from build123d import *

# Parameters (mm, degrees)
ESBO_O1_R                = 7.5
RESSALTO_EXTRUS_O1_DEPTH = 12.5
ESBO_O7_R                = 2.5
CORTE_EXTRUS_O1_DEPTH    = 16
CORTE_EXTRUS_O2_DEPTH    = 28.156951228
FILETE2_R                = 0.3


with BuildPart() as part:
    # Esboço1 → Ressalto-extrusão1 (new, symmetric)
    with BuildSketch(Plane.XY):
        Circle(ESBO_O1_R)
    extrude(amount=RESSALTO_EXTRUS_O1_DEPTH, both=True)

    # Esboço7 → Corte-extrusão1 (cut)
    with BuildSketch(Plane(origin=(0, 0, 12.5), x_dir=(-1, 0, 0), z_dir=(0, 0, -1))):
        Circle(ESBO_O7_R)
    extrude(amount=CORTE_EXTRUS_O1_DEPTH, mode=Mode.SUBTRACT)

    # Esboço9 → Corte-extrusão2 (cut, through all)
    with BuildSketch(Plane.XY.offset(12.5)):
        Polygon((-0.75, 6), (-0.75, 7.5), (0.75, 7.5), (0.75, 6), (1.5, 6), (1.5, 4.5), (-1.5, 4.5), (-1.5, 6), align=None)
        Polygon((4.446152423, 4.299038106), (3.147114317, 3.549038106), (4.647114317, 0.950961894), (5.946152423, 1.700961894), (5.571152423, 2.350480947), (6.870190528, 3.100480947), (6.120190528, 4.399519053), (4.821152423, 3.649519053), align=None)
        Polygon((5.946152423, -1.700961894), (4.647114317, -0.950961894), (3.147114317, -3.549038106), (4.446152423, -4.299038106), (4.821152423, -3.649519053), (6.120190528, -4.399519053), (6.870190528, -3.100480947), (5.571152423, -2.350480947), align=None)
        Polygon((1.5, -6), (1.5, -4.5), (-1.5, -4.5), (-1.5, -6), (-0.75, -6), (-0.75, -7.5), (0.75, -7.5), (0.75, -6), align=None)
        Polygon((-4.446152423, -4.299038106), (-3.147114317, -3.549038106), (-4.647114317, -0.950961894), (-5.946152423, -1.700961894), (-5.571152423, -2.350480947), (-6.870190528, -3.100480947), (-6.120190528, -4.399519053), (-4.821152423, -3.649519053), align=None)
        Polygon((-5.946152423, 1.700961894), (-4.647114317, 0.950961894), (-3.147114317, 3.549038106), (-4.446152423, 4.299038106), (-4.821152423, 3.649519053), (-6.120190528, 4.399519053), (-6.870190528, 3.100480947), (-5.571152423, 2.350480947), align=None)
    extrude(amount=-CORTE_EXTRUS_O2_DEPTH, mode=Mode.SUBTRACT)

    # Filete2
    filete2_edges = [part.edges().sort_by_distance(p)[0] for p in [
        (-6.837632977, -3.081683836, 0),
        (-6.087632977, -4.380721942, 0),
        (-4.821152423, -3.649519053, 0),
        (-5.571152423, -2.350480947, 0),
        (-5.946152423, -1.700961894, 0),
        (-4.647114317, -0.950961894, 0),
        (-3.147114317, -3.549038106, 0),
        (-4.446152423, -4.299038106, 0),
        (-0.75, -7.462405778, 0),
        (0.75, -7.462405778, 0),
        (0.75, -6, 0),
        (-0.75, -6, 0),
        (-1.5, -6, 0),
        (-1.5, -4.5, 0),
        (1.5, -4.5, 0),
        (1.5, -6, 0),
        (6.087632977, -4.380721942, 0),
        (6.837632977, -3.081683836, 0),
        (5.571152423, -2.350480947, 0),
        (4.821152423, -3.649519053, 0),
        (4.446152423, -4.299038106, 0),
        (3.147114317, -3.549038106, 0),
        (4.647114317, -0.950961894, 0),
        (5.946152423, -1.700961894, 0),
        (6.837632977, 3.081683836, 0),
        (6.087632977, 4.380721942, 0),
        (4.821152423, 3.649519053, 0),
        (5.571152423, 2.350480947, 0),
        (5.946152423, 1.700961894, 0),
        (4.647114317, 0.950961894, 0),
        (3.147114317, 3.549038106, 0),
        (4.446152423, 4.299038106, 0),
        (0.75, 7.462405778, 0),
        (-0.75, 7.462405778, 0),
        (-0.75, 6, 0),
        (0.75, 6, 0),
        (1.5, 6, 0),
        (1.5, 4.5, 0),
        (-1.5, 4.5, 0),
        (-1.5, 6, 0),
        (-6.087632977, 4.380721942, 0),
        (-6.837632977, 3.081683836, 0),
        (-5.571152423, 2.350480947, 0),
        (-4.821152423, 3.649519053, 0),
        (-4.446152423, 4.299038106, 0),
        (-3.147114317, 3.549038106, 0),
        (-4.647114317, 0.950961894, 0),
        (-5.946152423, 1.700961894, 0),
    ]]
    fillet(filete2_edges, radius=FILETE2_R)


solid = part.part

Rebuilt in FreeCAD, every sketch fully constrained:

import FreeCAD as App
import Part
import Sketcher
from FreeCAD import Vector
Q = App.Units.Quantity


def edges_at(feature, points):
    """Names of the edges that pass closest to the given points."""
    edges = feature.Shape.Edges
    near = lambda p: min(range(len(edges)), key=lambda i: edges[i].distToShape(Part.Vertex(*p))[0])
    return sorted({f"Edge{near(p) + 1}" for p in points})

doc = App.newDocument("Part")
body = doc.addObject("PartDesign::Body", "Body")

# Sketch on XY plane
sketch1 = body.newObject("Sketcher::SketchObject", "Sketch")
sketch1.AttachmentSupport = (doc.getObject("XY_Plane"), [""])
sketch1.MapMode = "FlatFace"
sketch1.addGeometry(Part.Circle(Vector(0, 0, 0), Vector(0, 0, 1), 8), False)
sketch1.addConstraint(Sketcher.Constraint("Coincident", 0, 3, -1, 1))
sketch1.addConstraint(Sketcher.Constraint("Diameter", 0, 15.0))
pad1 = body.newObject("PartDesign::Pad", "Pad")
pad1.Profile = sketch1
pad1.Length = 25
pad1.Midplane = True

# Sketch on XY plane
sketch2 = body.newObject("Sketcher::SketchObject", "Sketch001")
sketch2.AttachmentSupport = (doc.getObject("XY_Plane"), [""])
sketch2.MapMode = "FlatFace"
sketch2.AttachmentOffset = App.Placement(Vector(0, 0, 12.5), App.Rotation())
sketch2.addGeometry(Part.Circle(Vector(0, 0, 0), Vector(0, 0, 1), 2.5), False)
sketch2.addConstraint(Sketcher.Constraint("Coincident", 0, 3, -1, 1))
sketch2.addConstraint(Sketcher.Constraint("Diameter", 0, 5.0))
pocket1 = body.newObject("PartDesign::Pocket", "Pocket")
pocket1.Profile = sketch2
pocket1.Length = 16

# Sketch on XY plane
sketch3 = body.newObject("Sketcher::SketchObject", "Sketch002")
sketch3.AttachmentSupport = (doc.getObject("XY_Plane"), [""])
sketch3.MapMode = "FlatFace"
sketch3.AttachmentOffset = App.Placement(Vector(0, 0, 12.5), App.Rotation())
sketch3.addGeometry(Part.LineSegment(Vector(-0.8, 7.5, 0), Vector(-0.8, 6, 0)), False)
sketch3.addGeometry(Part.LineSegment(Vector(-0.8, 6, 0), Vector(-1.5, 6, 0)), False)
sketch3.addGeometry(Part.LineSegment(Vector(-1.5, 6, 0), Vector(-1.5, 4.5, 0)), False)
sketch3.addGeometry(Part.LineSegment(Vector(-1.5, 4.5, 0), Vector(1.5, 4.5, 0)), False)
sketch3.addGeometry(Part.LineSegment(Vector(1.5, 4.5, 0), Vector(1.5, 6, 0)), False)
sketch3.addGeometry(Part.LineSegment(Vector(1.5, 6, 0), Vector(0.8, 6, 0)), False)
sketch3.addGeometry(Part.LineSegment(Vector(0.8, 6, 0), Vector(0.8, 7.5, 0)), False)
sketch3.addGeometry(Part.LineSegment(Vector(0.8, 7.5, 0), Vector(-0.8, 7.5, 0)), False)
sketch3.addGeometry(Part.LineSegment(Vector(4.4, 4.3, 0), Vector(3.1, 3.5, 0)), False)
sketch3.addGeometry(Part.LineSegment(Vector(3.1, 3.5, 0), Vector(4.6, 1, 0)), False)
sketch3.addGeometry(Part.LineSegment(Vector(4.6, 1, 0), Vector(5.9, 1.7, 0)), False)
sketch3.addGeometry(Part.LineSegment(Vector(5.9, 1.7, 0), Vector(5.6, 2.4, 0)), False)
sketch3.addGeometry(Part.LineSegment(Vector(5.6, 2.4, 0), Vector(6.9, 3.1, 0)), False)
sketch3.addGeometry(Part.LineSegment(Vector(6.9, 3.1, 0), Vector(6.1, 4.4, 0)), False)
sketch3.addGeometry(Part.LineSegment(Vector(6.1, 4.4, 0), Vector(4.8, 3.6, 0)), False)
sketch3.addGeometry(Part.LineSegment(Vector(4.8, 3.6, 0), Vector(4.4, 4.3, 0)), False)
sketch3.addGeometry(Part.LineSegment(Vector(5.9, -1.7, 0), Vector(4.6, -1, 0)), False)
sketch3.addGeometry(Part.LineSegment(Vector(4.6, -1, 0), Vector(3.1, -3.5, 0)), False)
sketch3.addGeometry(Part.LineSegment(Vector(3.1, -3.5, 0), Vector(4.4, -4.3, 0)), False)
sketch3.addGeometry(Part.LineSegment(Vector(4.4, -4.3, 0), Vector(4.8, -3.6, 0)), False)
sketch3.addGeometry(Part.LineSegment(Vector(4.8, -3.6, 0), Vector(6.1, -4.4, 0)), False)
sketch3.addGeometry(Part.LineSegment(Vector(6.1, -4.4, 0), Vector(6.9, -3.1, 0)), False)
sketch3.addGeometry(Part.LineSegment(Vector(6.9, -3.1, 0), Vector(5.6, -2.4, 0)), False)
sketch3.addGeometry(Part.LineSegment(Vector(5.6, -2.4, 0), Vector(5.9, -1.7, 0)), False)
sketch3.addGeometry(Part.LineSegment(Vector(1.5, -6, 0), Vector(1.5, -4.5, 0)), False)
sketch3.addGeometry(Part.LineSegment(Vector(1.5, -4.5, 0), Vector(-1.5, -4.5, 0)), False)
sketch3.addGeometry(Part.LineSegment(Vector(-1.5, -4.5, 0), Vector(-1.5, -6, 0)), False)
sketch3.addGeometry(Part.LineSegment(Vector(-1.5, -6, 0), Vector(-0.8, -6, 0)), False)
sketch3.addGeometry(Part.LineSegment(Vector(-0.8, -6, 0), Vector(-0.8, -7.5, 0)), False)
sketch3.addGeometry(Part.LineSegment(Vector(-0.8, -7.5, 0), Vector(0.8, -7.5, 0)), False)
sketch3.addGeometry(Part.LineSegment(Vector(0.8, -7.5, 0), Vector(0.8, -6, 0)), False)
sketch3.addGeometry(Part.LineSegment(Vector(0.8, -6, 0), Vector(1.5, -6, 0)), False)
sketch3.addGeometry(Part.LineSegment(Vector(-4.4, -4.3, 0), Vector(-3.1, -3.5, 0)), False)
sketch3.addGeometry(Part.LineSegment(Vector(-3.1, -3.5, 0), Vector(-4.6, -1, 0)), False)
sketch3.addGeometry(Part.LineSegment(Vector(-4.6, -1, 0), Vector(-5.9, -1.7, 0)), False)
sketch3.addGeometry(Part.LineSegment(Vector(-5.9, -1.7, 0), Vector(-5.6, -2.4, 0)), False)
sketch3.addGeometry(Part.LineSegment(Vector(-5.6, -2.4, 0), Vector(-6.9, -3.1, 0)), False)
sketch3.addGeometry(Part.LineSegment(Vector(-6.9, -3.1, 0), Vector(-6.1, -4.4, 0)), False)
sketch3.addGeometry(Part.LineSegment(Vector(-6.1, -4.4, 0), Vector(-4.8, -3.6, 0)), False)
sketch3.addGeometry(Part.LineSegment(Vector(-4.8, -3.6, 0), Vector(-4.4, -4.3, 0)), False)
sketch3.addGeometry(Part.LineSegment(Vector(-5.9, 1.7, 0), Vector(-4.6, 1, 0)), False)
sketch3.addGeometry(Part.LineSegment(Vector(-4.6, 1, 0), Vector(-3.1, 3.5, 0)), False)
sketch3.addGeometry(Part.LineSegment(Vector(-3.1, 3.5, 0), Vector(-4.4, 4.3, 0)), False)
sketch3.addGeometry(Part.LineSegment(Vector(-4.4, 4.3, 0), Vector(-4.8, 3.6, 0)), False)
sketch3.addGeometry(Part.LineSegment(Vector(-4.8, 3.6, 0), Vector(-6.1, 4.4, 0)), False)
sketch3.addGeometry(Part.LineSegment(Vector(-6.1, 4.4, 0), Vector(-6.9, 3.1, 0)), False)
sketch3.addGeometry(Part.LineSegment(Vector(-6.9, 3.1, 0), Vector(-5.6, 2.4, 0)), False)
sketch3.addGeometry(Part.LineSegment(Vector(-5.6, 2.4, 0), Vector(-5.9, 1.7, 0)), False)
sketch3.addConstraint(Sketcher.Constraint("Coincident", 0, 2, 1, 1))
sketch3.addConstraint(Sketcher.Constraint("Coincident", 1, 2, 2, 1))
sketch3.addConstraint(Sketcher.Constraint("Coincident", 2, 2, 3, 1))
sketch3.addConstraint(Sketcher.Constraint("Coincident", 3, 2, 4, 1))
sketch3.addConstraint(Sketcher.Constraint("Coincident", 4, 2, 5, 1))
sketch3.addConstraint(Sketcher.Constraint("Coincident", 5, 2, 6, 1))
sketch3.addConstraint(Sketcher.Constraint("Coincident", 6, 2, 7, 1))
sketch3.addConstraint(Sketcher.Constraint("Coincident", 7, 2, 0, 1))
sketch3.addConstraint(Sketcher.Constraint("Coincident", 8, 2, 9, 1))
sketch3.addConstraint(Sketcher.Constraint("Coincident", 9, 2, 10, 1))
sketch3.addConstraint(Sketcher.Constraint("Coincident", 10, 2, 11, 1))
sketch3.addConstraint(Sketcher.Constraint("Coincident", 11, 2, 12, 1))
sketch3.addConstraint(Sketcher.Constraint("Coincident", 12, 2, 13, 1))
sketch3.addConstraint(Sketcher.Constraint("Coincident", 13, 2, 14, 1))
sketch3.addConstraint(Sketcher.Constraint("Coincident", 14, 2, 15, 1))
sketch3.addConstraint(Sketcher.Constraint("Coincident", 15, 2, 8, 1))
sketch3.addConstraint(Sketcher.Constraint("Coincident", 16, 2, 17, 1))
sketch3.addConstraint(Sketcher.Constraint("Coincident", 17, 2, 18, 1))
sketch3.addConstraint(Sketcher.Constraint("Coincident", 18, 2, 19, 1))
sketch3.addConstraint(Sketcher.Constraint("Coincident", 19, 2, 20, 1))
sketch3.addConstraint(Sketcher.Constraint("Coincident", 20, 2, 21, 1))
sketch3.addConstraint(Sketcher.Constraint("Coincident", 21, 2, 22, 1))
sketch3.addConstraint(Sketcher.Constraint("Coincident", 22, 2, 23, 1))
sketch3.addConstraint(Sketcher.Constraint("Coincident", 23, 2, 16, 1))
sketch3.addConstraint(Sketcher.Constraint("Coincident", 24, 2, 25, 1))
sketch3.addConstraint(Sketcher.Constraint("Coincident", 25, 2, 26, 1))
sketch3.addConstraint(Sketcher.Constraint("Coincident", 26, 2, 27, 1))
sketch3.addConstraint(Sketcher.Constraint("Coincident", 27, 2, 28, 1))
sketch3.addConstraint(Sketcher.Constraint("Coincident", 28, 2, 29, 1))
sketch3.addConstraint(Sketcher.Constraint("Coincident", 29, 2, 30, 1))
sketch3.addConstraint(Sketcher.Constraint("Coincident", 30, 2, 31, 1))
sketch3.addConstraint(Sketcher.Constraint("Coincident", 31, 2, 24, 1))
sketch3.addConstraint(Sketcher.Constraint("Coincident", 32, 2, 33, 1))
sketch3.addConstraint(Sketcher.Constraint("Coincident", 33, 2, 34, 1))
sketch3.addConstraint(Sketcher.Constraint("Coincident", 34, 2, 35, 1))
sketch3.addConstraint(Sketcher.Constraint("Coincident", 35, 2, 36, 1))
sketch3.addConstraint(Sketcher.Constraint("Coincident", 36, 2, 37, 1))
sketch3.addConstraint(Sketcher.Constraint("Coincident", 37, 2, 38, 1))
sketch3.addConstraint(Sketcher.Constraint("Coincident", 38, 2, 39, 1))
sketch3.addConstraint(Sketcher.Constraint("Coincident", 39, 2, 32, 1))
sketch3.addConstraint(Sketcher.Constraint("Coincident", 40, 2, 41, 1))
sketch3.addConstraint(Sketcher.Constraint("Coincident", 41, 2, 42, 1))
sketch3.addConstraint(Sketcher.Constraint("Coincident", 42, 2, 43, 1))
sketch3.addConstraint(Sketcher.Constraint("Coincident", 43, 2, 44, 1))
sketch3.addConstraint(Sketcher.Constraint("Coincident", 44, 2, 45, 1))
sketch3.addConstraint(Sketcher.Constraint("Coincident", 45, 2, 46, 1))
sketch3.addConstraint(Sketcher.Constraint("Coincident", 46, 2, 47, 1))
sketch3.addConstraint(Sketcher.Constraint("Coincident", 47, 2, 40, 1))
sketch3.addConstraint(Sketcher.Constraint("Vertical", 0))
sketch3.addConstraint(Sketcher.Constraint("Horizontal", 1))
sketch3.addConstraint(Sketcher.Constraint("Vertical", 2))
sketch3.addConstraint(Sketcher.Constraint("Horizontal", 3))
sketch3.addConstraint(Sketcher.Constraint("Vertical", 4))
sketch3.addConstraint(Sketcher.Constraint("Horizontal", 5))
sketch3.addConstraint(Sketcher.Constraint("Vertical", 6))
sketch3.addConstraint(Sketcher.Constraint("Horizontal", 7))
sketch3.addConstraint(Sketcher.Constraint("Vertical", 24))
sketch3.addConstraint(Sketcher.Constraint("Horizontal", 25))
sketch3.addConstraint(Sketcher.Constraint("Vertical", 26))
sketch3.addConstraint(Sketcher.Constraint("Horizontal", 27))
sketch3.addConstraint(Sketcher.Constraint("Vertical", 28))
sketch3.addConstraint(Sketcher.Constraint("Horizontal", 29))
sketch3.addConstraint(Sketcher.Constraint("Vertical", 30))
sketch3.addConstraint(Sketcher.Constraint("Horizontal", 31))
sketch3.addConstraint(Sketcher.Constraint("Symmetric", 2, 2, 24, 2, -1, 1))
sketch3.addConstraint(Sketcher.Constraint("Symmetric", 4, 2, 26, 2, -1, 1))
sketch3.addConstraint(Sketcher.Constraint("Symmetric", 6, 2, 28, 2, -1, 1))
sketch3.addConstraint(Sketcher.Constraint("Symmetric", 0, 2, 30, 2, -1, 1))
sketch3.addConstraint(Sketcher.Constraint("Symmetric", 8, 2, 32, 2, -1, 1))
sketch3.addConstraint(Sketcher.Constraint("Symmetric", 9, 2, 33, 2, -1, 1))
sketch3.addConstraint(Sketcher.Constraint("Symmetric", 10, 2, 34, 2, -1, 1))
sketch3.addConstraint(Sketcher.Constraint("Symmetric", 11, 2, 35, 2, -1, 1))
sketch3.addConstraint(Sketcher.Constraint("Symmetric", 12, 2, 36, 2, -1, 1))
sketch3.addConstraint(Sketcher.Constraint("Symmetric", 13, 2, 37, 2, -1, 1))
sketch3.addConstraint(Sketcher.Constraint("Symmetric", 14, 2, 38, 2, -1, 1))
sketch3.addConstraint(Sketcher.Constraint("Symmetric", 15, 2, 39, 2, -1, 1))
sketch3.addConstraint(Sketcher.Constraint("Symmetric", 16, 2, 40, 2, -1, 1))
sketch3.addConstraint(Sketcher.Constraint("Symmetric", 17, 2, 41, 2, -1, 1))
sketch3.addConstraint(Sketcher.Constraint("Symmetric", 18, 2, 42, 2, -1, 1))
sketch3.addConstraint(Sketcher.Constraint("Symmetric", 19, 2, 43, 2, -1, 1))
sketch3.addConstraint(Sketcher.Constraint("Symmetric", 20, 2, 44, 2, -1, 1))
sketch3.addConstraint(Sketcher.Constraint("Symmetric", 21, 2, 45, 2, -1, 1))
sketch3.addConstraint(Sketcher.Constraint("Symmetric", 22, 2, 46, 2, -1, 1))
sketch3.addConstraint(Sketcher.Constraint("Symmetric", 23, 2, 47, 2, -1, 1))
sketch3.addConstraint(Sketcher.Constraint("Symmetric", 1, 2, 4, 2, -2))
sketch3.addConstraint(Sketcher.Constraint("Symmetric", 17, 2, 32, 2, -2))
sketch3.addConstraint(Sketcher.Constraint("Symmetric", 16, 2, 33, 2, -2))
sketch3.addConstraint(Sketcher.Constraint("Symmetric", 23, 2, 34, 2, -2))
sketch3.addConstraint(Sketcher.Constraint("Symmetric", 22, 2, 35, 2, -2))
sketch3.addConstraint(Sketcher.Constraint("Symmetric", 21, 2, 36, 2, -2))
sketch3.addConstraint(Sketcher.Constraint("Symmetric", 20, 2, 37, 2, -2))
sketch3.addConstraint(Sketcher.Constraint("Symmetric", 19, 2, 38, 2, -2))
sketch3.addConstraint(Sketcher.Constraint("Symmetric", 18, 2, 39, 2, -2))
sketch3.addConstraint(Sketcher.Constraint("Perpendicular", 8, 9))
sketch3.addConstraint(Sketcher.Constraint("Perpendicular", 9, 10))
sketch3.addConstraint(Sketcher.Constraint("Perpendicular", 10, 11))
sketch3.addConstraint(Sketcher.Constraint("Perpendicular", 11, 12))
sketch3.addConstraint(Sketcher.Constraint("Perpendicular", 12, 13))
sketch3.addConstraint(Sketcher.Constraint("Perpendicular", 13, 14))
sketch3.addConstraint(Sketcher.Constraint("Perpendicular", 14, 15))
sketch3.addConstraint(Sketcher.Constraint("Vertical", 7, 2, 27, 2))
sketch3.addConstraint(Sketcher.Constraint("Equal", 29, 0))
sketch3.addConstraint(Sketcher.Constraint("Equal", 0, 2))
sketch3.addConstraint(Sketcher.Constraint("Equal", 8, 10))
sketch3.addConstraint(Sketcher.Constraint("Equal", 10, 12))
sketch3.addConstraint(Sketcher.Constraint("Equal", 12, 13))
sketch3.addConstraint(Sketcher.Constraint("Equal", 11, 15))
sketch3.addConstraint(Sketcher.Constraint("DistanceX", 3, 1, 3, 2, 3.0))
sketch3.addConstraint(Sketcher.Constraint("Angle", 8, Q("-150 deg")))
sketch3.addConstraint(Sketcher.Constraint("Distance", 9, 3.0))
sketch3.addConstraint(Sketcher.Constraint("DistanceX", 7, 2, 7, 1, 1.5))
sketch3.addConstraint(Sketcher.Constraint("DistanceY", -1, 1, 0, 2, 6.0))
sketch3.addConstraint(Sketcher.Constraint("DistanceY", 18, 2, 10, 2, 6.0))
sketch3.addConstraint(Sketcher.Constraint("Distance", 8, 1.5))
sketch3.addConstraint(Sketcher.Constraint("DistanceX", -1, 1, 12, 2, 6.870191))
pocket2 = body.newObject("PartDesign::Pocket", "Pocket001")
pocket2.Profile = sketch3
pocket2.Type = "ThroughAll"
doc.recompute()

fillet = body.newObject("PartDesign::Fillet", "Fillet")
fillet.Base = (pocket2, edges_at(pocket2, [
    (-6.838, -3.082, 0),
    (-6.088, -4.381, 0),
    (-4.821, -3.65, 0),
    (-5.571, -2.35, 0),
    (-5.946, -1.701, 0),
    (-4.647, -0.951, 0),
    (-3.147, -3.549, 0),
    (-4.446, -4.299, 0),
    (-0.75, -7.462, 0),
    (0.75, -7.462, 0),
    (0.75, -6, 0),
    (-0.75, -6, 0),
    (-1.5, -6, 0),
    (-1.5, -4.5, 0),
    (1.5, -4.5, 0),
    (1.5, -6, 0),
    (6.088, -4.381, 0),
    (6.838, -3.082, 0),
    (5.571, -2.35, 0),
    (4.821, -3.65, 0),
    (4.446, -4.299, 0),
    (3.147, -3.549, 0),
    (4.647, -0.951, 0),
    (5.946, -1.701, 0),
    (6.838, 3.082, 0),
    (6.088, 4.381, 0),
    (4.821, 3.65, 0),
    (5.571, 2.35, 0),
    (5.946, 1.701, 0),
    (4.647, 0.951, 0),
    (3.147, 3.549, 0),
    (4.446, 4.299, 0),
    (0.75, 7.462, 0),
    (-0.75, 7.462, 0),
    (-0.75, 6, 0),
    (0.75, 6, 0),
    (1.5, 6, 0),
    (1.5, 4.5, 0),
    (-1.5, 4.5, 0),
    (-1.5, 6, 0),
    (-6.088, 4.381, 0),
    (-6.838, 3.082, 0),
    (-5.571, 2.35, 0),
    (-4.821, 3.65, 0),
    (-4.446, 4.299, 0),
    (-3.147, 3.549, 0),
    (-4.647, 0.951, 0),
    (-5.946, 1.701, 0),
]))
fillet.Radius = 0.3

doc.recompute()
